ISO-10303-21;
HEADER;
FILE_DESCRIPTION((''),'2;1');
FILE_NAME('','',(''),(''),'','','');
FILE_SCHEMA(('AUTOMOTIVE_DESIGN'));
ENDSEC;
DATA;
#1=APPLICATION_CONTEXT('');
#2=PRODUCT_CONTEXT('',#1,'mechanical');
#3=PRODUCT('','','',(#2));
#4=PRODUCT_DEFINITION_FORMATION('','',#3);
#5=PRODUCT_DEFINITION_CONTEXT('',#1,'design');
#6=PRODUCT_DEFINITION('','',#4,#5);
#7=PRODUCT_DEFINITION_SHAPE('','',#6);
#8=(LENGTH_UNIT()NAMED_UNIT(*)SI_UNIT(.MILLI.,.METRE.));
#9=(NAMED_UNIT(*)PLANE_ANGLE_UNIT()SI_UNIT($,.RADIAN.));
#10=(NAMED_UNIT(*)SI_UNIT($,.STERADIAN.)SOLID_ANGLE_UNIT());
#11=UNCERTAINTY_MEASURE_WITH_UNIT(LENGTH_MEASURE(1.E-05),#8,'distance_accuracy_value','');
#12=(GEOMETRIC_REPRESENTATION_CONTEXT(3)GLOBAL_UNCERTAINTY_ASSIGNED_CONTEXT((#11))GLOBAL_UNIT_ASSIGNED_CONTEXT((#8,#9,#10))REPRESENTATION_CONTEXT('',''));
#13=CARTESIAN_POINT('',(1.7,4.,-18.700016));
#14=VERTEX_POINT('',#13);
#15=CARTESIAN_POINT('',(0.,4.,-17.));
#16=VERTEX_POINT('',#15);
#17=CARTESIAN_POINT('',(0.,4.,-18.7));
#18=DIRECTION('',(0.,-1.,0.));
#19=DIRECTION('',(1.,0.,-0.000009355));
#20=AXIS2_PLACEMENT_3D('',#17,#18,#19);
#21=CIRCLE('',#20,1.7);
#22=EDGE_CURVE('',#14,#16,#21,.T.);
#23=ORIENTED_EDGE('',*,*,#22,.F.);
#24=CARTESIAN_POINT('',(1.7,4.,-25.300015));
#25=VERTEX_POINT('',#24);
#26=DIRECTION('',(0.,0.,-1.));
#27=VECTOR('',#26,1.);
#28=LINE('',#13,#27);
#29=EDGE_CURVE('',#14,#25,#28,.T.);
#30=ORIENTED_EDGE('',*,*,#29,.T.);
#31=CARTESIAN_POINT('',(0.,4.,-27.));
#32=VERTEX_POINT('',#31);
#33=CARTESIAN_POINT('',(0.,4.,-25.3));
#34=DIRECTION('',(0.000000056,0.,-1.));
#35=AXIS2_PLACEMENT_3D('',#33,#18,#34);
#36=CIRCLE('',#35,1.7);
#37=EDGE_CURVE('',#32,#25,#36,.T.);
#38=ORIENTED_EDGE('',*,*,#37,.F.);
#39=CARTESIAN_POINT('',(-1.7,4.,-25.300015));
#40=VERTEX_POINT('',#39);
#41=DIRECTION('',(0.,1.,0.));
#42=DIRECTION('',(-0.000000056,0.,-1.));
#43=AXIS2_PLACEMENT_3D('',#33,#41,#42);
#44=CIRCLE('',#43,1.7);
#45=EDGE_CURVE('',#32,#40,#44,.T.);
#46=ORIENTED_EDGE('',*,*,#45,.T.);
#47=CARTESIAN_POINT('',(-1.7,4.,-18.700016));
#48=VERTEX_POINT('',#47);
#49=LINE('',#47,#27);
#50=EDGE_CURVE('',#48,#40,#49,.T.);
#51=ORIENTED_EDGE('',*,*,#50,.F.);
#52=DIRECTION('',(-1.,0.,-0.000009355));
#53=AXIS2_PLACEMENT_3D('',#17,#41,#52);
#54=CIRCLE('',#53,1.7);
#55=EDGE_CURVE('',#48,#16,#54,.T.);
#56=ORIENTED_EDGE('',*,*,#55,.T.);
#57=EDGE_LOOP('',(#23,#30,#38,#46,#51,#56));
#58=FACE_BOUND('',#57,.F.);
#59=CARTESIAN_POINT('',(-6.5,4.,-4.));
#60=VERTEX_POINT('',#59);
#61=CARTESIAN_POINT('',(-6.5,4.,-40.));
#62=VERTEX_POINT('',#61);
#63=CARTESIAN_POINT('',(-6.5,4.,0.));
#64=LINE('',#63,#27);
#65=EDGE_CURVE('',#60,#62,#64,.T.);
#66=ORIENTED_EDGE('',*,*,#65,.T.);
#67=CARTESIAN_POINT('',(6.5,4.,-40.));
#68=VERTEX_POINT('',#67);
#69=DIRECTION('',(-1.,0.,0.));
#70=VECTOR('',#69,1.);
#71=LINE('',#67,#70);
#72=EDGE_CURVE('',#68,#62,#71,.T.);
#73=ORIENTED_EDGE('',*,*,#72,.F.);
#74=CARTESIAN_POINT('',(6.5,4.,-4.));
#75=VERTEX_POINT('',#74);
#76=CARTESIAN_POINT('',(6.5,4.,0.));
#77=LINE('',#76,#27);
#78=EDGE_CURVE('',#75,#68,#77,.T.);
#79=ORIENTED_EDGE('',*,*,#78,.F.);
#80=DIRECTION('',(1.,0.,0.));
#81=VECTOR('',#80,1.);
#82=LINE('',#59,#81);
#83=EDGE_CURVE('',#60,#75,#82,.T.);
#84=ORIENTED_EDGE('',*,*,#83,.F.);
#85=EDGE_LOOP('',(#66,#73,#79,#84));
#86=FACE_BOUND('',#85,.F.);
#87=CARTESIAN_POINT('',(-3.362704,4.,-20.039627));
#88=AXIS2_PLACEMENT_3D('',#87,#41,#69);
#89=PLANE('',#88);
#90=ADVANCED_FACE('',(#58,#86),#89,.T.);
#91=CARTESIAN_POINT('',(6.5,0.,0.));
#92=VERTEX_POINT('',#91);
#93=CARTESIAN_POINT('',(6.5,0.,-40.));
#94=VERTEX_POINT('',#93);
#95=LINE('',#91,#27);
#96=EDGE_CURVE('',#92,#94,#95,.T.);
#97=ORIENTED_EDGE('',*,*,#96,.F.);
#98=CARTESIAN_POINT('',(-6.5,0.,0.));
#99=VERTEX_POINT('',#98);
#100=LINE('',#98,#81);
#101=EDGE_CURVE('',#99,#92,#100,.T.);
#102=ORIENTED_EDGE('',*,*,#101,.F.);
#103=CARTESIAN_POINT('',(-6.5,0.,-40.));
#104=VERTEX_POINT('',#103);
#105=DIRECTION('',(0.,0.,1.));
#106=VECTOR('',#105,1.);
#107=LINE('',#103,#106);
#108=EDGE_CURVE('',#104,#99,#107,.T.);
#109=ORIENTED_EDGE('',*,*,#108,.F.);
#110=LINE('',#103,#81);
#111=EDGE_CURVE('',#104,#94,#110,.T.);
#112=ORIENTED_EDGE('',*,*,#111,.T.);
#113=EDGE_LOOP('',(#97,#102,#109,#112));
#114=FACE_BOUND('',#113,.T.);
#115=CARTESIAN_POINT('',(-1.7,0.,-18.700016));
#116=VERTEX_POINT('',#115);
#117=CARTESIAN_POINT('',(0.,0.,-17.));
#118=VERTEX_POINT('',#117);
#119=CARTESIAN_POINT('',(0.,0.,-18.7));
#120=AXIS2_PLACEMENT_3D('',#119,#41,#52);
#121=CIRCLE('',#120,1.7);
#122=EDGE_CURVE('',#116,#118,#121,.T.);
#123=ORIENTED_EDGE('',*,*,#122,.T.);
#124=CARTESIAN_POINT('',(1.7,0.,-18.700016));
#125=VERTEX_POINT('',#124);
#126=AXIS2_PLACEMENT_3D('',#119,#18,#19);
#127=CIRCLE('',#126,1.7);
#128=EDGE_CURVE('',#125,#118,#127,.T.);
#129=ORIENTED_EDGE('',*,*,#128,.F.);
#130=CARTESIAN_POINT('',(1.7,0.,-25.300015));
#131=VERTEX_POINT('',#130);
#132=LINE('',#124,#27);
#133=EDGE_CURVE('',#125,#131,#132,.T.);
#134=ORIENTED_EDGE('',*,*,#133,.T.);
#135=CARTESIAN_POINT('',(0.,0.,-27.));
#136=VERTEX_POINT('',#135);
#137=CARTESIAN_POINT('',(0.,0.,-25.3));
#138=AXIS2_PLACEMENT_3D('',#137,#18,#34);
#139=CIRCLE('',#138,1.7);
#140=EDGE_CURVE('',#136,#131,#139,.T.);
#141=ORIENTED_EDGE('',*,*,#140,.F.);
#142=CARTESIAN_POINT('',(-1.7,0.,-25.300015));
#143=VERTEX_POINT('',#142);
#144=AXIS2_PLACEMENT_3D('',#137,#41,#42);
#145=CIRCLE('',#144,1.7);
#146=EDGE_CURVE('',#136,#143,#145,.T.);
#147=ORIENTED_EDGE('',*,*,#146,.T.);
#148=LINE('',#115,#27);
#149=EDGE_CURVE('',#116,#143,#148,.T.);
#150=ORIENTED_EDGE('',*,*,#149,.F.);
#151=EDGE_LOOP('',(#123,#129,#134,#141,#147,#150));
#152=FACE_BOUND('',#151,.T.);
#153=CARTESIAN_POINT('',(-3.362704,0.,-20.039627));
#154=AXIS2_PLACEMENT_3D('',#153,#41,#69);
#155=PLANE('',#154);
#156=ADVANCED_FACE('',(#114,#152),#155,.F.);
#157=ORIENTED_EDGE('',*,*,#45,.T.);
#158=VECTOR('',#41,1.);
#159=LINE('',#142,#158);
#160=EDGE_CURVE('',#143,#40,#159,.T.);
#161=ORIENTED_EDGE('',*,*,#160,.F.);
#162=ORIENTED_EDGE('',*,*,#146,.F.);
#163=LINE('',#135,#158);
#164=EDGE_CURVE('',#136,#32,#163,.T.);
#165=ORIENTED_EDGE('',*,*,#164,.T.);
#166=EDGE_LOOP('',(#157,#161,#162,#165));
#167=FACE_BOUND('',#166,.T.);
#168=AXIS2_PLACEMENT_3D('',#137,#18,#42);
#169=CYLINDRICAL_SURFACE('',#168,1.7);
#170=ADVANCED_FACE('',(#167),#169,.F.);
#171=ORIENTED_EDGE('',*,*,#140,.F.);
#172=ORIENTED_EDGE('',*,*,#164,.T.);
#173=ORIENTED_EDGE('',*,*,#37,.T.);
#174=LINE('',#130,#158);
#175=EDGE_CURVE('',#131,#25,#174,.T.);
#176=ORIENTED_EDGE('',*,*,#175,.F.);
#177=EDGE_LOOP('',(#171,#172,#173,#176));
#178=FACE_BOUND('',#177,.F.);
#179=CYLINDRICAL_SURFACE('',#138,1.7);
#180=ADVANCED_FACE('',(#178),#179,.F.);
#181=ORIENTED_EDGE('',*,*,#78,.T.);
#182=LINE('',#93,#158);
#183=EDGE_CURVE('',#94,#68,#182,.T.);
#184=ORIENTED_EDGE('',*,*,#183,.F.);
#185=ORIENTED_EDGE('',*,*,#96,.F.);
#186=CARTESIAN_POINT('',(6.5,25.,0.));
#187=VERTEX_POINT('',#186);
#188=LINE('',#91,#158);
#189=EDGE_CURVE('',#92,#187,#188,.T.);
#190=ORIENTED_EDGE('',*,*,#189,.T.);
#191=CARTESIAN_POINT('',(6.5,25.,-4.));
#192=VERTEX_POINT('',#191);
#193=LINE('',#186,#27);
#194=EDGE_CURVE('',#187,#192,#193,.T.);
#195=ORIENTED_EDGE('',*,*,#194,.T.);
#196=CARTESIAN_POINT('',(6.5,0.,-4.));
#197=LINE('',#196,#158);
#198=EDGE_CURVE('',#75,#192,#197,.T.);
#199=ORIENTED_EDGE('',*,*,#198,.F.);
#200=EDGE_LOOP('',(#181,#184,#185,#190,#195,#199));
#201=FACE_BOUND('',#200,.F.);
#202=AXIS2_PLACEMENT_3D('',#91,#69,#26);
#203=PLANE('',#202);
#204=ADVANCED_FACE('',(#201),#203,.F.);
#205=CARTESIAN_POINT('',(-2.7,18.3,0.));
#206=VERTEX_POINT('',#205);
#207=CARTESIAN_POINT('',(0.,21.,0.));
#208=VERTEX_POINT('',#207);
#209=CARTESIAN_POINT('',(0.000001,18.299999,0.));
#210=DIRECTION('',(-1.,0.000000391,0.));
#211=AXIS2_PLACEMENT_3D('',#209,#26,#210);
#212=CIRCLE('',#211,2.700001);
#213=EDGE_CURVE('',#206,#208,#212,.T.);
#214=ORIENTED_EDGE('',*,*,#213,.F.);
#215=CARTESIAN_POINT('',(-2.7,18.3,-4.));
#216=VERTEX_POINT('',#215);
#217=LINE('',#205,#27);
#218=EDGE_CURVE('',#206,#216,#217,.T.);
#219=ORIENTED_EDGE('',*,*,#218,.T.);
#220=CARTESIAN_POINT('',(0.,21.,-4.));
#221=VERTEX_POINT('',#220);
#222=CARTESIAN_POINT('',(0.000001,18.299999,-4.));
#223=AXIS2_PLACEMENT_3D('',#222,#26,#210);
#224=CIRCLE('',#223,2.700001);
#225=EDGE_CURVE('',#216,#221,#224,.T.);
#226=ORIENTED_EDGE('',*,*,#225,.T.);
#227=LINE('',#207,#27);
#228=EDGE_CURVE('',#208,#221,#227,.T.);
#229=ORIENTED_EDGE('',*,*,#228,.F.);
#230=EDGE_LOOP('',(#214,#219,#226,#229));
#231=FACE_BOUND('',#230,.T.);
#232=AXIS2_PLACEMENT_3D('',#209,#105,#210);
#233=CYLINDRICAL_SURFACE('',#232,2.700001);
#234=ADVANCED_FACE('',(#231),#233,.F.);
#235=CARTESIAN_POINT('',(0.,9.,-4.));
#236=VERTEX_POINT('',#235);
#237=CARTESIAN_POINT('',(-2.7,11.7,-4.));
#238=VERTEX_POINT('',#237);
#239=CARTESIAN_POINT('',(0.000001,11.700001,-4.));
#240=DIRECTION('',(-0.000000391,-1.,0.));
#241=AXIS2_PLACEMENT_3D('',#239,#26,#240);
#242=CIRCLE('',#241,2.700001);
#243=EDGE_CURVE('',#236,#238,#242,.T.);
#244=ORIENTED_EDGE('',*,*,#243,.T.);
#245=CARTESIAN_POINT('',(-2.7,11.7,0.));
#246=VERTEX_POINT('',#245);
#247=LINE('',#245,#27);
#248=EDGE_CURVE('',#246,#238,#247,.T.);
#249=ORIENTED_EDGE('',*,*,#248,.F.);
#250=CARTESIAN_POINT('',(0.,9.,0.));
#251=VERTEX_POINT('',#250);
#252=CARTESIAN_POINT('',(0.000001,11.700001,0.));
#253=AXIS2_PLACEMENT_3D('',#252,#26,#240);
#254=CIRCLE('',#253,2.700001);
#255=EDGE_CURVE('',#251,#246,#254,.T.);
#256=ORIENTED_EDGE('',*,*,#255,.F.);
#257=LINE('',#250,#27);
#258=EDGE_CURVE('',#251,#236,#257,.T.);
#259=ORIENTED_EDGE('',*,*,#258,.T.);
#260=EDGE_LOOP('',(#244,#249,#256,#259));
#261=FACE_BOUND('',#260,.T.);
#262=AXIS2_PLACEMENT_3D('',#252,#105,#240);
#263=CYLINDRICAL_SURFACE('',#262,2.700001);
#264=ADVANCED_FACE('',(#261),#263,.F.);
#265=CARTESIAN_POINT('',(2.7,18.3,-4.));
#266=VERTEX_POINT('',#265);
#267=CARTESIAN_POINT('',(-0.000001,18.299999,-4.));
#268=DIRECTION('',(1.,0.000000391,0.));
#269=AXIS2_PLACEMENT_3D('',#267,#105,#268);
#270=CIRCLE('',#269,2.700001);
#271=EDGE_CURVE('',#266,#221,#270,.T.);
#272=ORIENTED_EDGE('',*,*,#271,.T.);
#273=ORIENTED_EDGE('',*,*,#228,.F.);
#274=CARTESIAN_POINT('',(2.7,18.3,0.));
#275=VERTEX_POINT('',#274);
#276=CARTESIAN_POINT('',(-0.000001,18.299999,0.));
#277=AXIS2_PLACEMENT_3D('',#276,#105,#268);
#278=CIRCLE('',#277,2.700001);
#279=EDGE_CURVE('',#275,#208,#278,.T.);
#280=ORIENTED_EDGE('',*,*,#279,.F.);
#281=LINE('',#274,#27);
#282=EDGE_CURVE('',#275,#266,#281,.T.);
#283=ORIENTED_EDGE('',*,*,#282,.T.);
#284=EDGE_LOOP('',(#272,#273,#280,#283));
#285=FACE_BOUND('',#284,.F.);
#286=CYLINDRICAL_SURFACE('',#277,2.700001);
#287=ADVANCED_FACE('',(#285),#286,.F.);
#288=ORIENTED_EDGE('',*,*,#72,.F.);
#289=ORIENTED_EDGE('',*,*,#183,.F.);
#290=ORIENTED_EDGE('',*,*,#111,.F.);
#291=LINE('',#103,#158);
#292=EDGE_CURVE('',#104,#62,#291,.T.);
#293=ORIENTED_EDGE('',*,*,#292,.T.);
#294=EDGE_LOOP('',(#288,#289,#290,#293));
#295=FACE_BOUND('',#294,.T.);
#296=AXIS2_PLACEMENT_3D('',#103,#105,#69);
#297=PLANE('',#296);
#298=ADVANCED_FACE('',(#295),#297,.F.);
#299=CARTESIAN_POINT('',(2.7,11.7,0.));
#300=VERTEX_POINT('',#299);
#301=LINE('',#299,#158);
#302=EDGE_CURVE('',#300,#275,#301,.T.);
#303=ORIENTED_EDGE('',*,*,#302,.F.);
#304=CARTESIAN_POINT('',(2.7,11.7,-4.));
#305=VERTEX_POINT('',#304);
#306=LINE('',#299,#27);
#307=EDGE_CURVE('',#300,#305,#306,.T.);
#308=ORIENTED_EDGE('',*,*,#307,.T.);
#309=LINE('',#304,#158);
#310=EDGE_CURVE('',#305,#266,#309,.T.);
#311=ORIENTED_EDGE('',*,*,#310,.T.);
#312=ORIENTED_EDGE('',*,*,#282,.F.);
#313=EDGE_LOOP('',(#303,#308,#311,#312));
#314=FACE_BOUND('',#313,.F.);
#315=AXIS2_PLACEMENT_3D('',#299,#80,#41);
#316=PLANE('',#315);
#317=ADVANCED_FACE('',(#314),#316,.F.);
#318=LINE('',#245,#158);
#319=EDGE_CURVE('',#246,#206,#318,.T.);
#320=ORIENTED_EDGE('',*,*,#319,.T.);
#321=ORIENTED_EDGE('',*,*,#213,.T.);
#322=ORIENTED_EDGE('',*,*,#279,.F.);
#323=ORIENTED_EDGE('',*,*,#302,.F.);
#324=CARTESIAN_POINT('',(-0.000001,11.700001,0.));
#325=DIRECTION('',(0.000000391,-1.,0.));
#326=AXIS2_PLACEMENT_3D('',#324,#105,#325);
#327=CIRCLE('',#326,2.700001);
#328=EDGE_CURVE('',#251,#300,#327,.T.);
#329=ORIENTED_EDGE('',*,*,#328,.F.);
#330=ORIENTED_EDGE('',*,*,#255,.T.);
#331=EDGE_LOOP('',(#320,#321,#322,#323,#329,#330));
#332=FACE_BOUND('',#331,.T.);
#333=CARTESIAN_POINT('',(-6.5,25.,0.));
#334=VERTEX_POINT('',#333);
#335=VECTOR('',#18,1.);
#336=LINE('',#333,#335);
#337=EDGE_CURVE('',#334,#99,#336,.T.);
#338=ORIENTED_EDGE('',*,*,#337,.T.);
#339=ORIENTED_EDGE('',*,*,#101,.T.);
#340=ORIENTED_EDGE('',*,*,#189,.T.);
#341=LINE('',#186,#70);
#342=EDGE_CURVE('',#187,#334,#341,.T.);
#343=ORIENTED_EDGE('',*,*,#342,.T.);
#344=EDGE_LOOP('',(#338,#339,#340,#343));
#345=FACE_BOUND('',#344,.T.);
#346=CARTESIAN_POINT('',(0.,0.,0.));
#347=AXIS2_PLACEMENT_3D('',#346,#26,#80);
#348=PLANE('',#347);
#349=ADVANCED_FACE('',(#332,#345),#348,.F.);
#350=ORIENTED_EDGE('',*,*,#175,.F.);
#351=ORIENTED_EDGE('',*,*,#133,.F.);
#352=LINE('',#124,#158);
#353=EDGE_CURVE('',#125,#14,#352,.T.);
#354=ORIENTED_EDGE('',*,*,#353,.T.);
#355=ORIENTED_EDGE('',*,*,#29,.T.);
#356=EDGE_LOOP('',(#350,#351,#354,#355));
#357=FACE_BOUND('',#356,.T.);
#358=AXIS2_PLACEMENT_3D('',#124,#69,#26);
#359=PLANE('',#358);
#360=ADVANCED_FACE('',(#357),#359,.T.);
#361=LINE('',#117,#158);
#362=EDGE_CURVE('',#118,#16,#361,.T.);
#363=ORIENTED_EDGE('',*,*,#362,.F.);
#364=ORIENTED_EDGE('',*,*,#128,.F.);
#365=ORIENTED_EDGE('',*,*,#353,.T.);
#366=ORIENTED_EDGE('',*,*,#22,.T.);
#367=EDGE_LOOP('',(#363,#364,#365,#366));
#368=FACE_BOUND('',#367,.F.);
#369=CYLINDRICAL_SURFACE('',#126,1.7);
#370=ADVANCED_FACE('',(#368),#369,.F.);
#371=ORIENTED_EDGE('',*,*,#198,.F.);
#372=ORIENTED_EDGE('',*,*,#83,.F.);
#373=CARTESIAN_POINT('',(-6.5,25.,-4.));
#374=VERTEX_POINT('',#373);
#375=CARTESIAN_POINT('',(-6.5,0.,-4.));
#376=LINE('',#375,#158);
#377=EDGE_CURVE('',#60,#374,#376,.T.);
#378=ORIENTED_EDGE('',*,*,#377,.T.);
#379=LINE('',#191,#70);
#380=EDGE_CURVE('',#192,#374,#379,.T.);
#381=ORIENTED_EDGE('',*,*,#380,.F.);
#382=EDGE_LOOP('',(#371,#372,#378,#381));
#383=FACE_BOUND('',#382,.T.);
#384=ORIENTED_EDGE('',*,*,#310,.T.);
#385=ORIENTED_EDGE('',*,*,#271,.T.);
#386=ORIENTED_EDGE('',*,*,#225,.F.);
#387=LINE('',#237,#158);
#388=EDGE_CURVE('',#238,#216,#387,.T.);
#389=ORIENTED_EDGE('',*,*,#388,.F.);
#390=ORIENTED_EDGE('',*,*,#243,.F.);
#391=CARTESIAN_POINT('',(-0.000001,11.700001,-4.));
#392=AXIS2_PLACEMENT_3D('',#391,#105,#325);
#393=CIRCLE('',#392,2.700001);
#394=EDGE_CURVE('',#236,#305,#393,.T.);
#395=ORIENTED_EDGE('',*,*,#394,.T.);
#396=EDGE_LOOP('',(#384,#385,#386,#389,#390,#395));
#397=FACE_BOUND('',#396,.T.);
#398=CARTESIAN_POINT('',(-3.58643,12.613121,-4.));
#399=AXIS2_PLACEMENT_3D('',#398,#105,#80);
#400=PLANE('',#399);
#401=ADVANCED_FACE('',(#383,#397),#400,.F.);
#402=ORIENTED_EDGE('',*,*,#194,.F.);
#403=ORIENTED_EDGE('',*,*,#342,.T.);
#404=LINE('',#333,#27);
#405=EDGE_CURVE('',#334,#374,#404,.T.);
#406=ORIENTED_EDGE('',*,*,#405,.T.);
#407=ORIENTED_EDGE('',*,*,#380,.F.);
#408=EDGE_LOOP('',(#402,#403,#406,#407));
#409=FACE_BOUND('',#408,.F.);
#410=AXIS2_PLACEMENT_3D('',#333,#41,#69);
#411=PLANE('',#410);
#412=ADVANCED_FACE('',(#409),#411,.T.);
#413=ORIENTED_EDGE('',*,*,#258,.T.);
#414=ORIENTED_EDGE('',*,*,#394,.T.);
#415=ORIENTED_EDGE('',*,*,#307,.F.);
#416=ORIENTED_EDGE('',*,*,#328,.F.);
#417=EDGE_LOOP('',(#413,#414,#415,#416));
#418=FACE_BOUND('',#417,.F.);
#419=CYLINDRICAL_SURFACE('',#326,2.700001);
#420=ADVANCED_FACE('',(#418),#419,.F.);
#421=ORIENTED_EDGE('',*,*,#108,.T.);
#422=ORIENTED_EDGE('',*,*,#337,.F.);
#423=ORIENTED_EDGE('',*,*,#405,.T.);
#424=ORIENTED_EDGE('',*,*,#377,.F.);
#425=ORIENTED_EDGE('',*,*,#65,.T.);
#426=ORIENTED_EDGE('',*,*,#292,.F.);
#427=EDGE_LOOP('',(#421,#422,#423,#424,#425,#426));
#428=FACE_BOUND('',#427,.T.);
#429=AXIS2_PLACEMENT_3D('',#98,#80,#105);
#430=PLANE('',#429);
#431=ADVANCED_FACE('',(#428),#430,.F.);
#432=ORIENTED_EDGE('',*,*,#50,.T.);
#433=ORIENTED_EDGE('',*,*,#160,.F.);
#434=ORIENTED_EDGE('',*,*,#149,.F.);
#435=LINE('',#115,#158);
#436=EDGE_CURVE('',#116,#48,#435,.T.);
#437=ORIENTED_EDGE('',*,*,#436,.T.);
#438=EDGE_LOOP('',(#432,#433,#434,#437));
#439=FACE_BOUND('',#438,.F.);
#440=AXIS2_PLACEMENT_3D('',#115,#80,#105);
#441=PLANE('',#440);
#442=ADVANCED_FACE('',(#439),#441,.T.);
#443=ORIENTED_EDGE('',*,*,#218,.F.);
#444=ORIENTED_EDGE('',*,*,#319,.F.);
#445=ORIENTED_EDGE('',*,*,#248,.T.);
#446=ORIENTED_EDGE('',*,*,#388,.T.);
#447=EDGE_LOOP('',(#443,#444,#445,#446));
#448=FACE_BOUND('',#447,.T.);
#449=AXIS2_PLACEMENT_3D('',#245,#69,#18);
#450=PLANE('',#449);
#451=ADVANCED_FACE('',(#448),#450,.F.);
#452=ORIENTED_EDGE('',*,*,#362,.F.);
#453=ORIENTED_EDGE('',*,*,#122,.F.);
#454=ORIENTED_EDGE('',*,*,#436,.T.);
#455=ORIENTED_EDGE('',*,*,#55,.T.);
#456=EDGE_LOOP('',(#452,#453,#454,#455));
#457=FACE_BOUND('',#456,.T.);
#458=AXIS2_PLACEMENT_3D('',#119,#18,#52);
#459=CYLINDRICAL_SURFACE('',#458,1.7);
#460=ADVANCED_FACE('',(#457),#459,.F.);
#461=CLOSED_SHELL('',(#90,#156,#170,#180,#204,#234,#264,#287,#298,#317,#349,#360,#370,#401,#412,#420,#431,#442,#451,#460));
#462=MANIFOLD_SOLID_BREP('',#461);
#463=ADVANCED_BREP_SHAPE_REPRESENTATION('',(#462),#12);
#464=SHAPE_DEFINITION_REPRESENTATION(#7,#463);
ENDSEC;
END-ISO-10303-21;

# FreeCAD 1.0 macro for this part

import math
import FreeCAD as App
import Part
import Sketcher

V = App.Vector

doc = App.newDocument("Part")
body = doc.addObject("PartDesign::Body", "Body")

# Sketch on XZ plane
sketch1 = body.newObject("Sketcher::SketchObject", "Sketch")
sketch1.AttachmentSupport = (doc.getObject("XZ_Plane"), [""])
sketch1.MapMode = "FlatFace"
sketch1.addGeometry([
    Part.LineSegment(V(6.5, 0, 0), V(0, 0, 0)),  # 0
    Part.LineSegment(V(0, 0, 0), V(0, -17, 0)),  # 1
    Part.ArcOfCircle(Part.Circle(V(0, -18.7, 0), V(0, 0, 1), 1.7), math.radians(0), math.radians(90)),  # 2
    Part.LineSegment(V(1.7, -18.7, 0), V(1.7, -25.3, 0)),  # 3
    Part.ArcOfCircle(Part.Circle(V(0, -25.3, 0), V(0, 0, 1), 1.7), math.radians(-90), math.radians(0)),  # 4
    Part.LineSegment(V(0, -27, 0), V(0, -40, 0)),  # 5
    Part.LineSegment(V(0, -40, 0), V(6.5, -40, 0)),  # 6
    Part.LineSegment(V(6.5, -40, 0), V(6.5, 0, 0)),  # 7
], False)
sketch1.addConstraint([
    Sketcher.Constraint("Coincident", 0, 2, 1, 1),
    Sketcher.Constraint("Coincident", 1, 2, 2, 2),
    Sketcher.Constraint("Coincident", 2, 1, 3, 1),
    Sketcher.Constraint("Coincident", 3, 2, 4, 2),
    Sketcher.Constraint("Coincident", 4, 1, 5, 1),
    Sketcher.Constraint("Coincident", 5, 2, 6, 1),
    Sketcher.Constraint("Coincident", 6, 2, 7, 1),
    Sketcher.Constraint("Coincident", 7, 2, 0, 1),
    Sketcher.Constraint("Horizontal", 0),
    Sketcher.Constraint("Vertical", 1),
    Sketcher.Constraint("Vertical", 3),
    Sketcher.Constraint("Vertical", 5),
    Sketcher.Constraint("Horizontal", 6),
    Sketcher.Constraint("Vertical", 7),
    Sketcher.Constraint("Coincident", 0, 2, -1, 1),
    Sketcher.Constraint("Equal", 2, 4),
    Sketcher.Constraint("PointOnObject", 2, 3, -2),
    Sketcher.Constraint("PointOnObject", 4, 1, -2),
    Sketcher.Constraint("Radius", 2, 1.7),
    Sketcher.Constraint("DistanceY", 1, 2, 1, 1, 17.0),
    Sketcher.Constraint("DistanceY", 5, 2, 5, 1, 13.0),
    Sketcher.Constraint("DistanceY", 7, 1, 7, 2, 40.0),
    Sketcher.Constraint("DistanceX", 0, 2, 0, 1, 6.5),
    Sketcher.Constraint("DistanceY", 3, 2, 3, 1, 6.599999),
    Sketcher.Constraint("DistanceY", 2, 1, -1, 1, 18.700016),
])
pad1 = body.newObject("PartDesign::Pad", "Pad")
pad1.Profile = sketch1
pad1.Length = 4
pad1.Reversed = True

# Sketch on XY plane
sketch2 = body.newObject("Sketcher::SketchObject", "Sketch001")
sketch2.AttachmentSupport = (doc.getObject("XY_Plane"), [""])
sketch2.MapMode = "FlatFace"
sketch2.addGeometry([
    Part.LineSegment(V(0, 0, 0), V(6.5, 0, 0)),  # 0
    Part.LineSegment(V(6.5, 0, 0), V(6.5, 25, 0)),  # 1
    Part.LineSegment(V(6.5, 25, 0), V(0, 25, 0)),  # 2
    Part.LineSegment(V(0, 25, 0), V(0, 21, 0)),  # 3
    Part.ArcOfCircle(Part.Circle(V(0, 18.3, 0), V(0, 0, 1), 2.7), math.radians(0), math.radians(90)),  # 4
    Part.LineSegment(V(2.7, 18.3, 0), V(2.7, 11.7, 0)),  # 5
    Part.ArcOfCircle(Part.Circle(V(0, 11.7, 0), V(0, 0, 1), 2.7), math.radians(-90), math.radians(0)),  # 6
    Part.LineSegment(V(0, 9, 0), V(0, 0, 0)),  # 7
], False)
sketch2.addConstraint([
    Sketcher.Constraint("Coincident", 0, 2, 1, 1),
    Sketcher.Constraint("Coincident", 1, 2, 2, 1),
    Sketcher.Constraint("Coincident", 2, 2, 3, 1),
    Sketcher.Constraint("Coincident", 3, 2, 4, 2),
    Sketcher.Constraint("Tangent", 4, 1, 5, 1),
    Sketcher.Constraint("Tangent", 5, 2, 6, 2),
    Sketcher.Constraint("Coincident", 6, 1, 7, 1),
    Sketcher.Constraint("Coincident", 7, 2, 0, 1),
    Sketcher.Constraint("Horizontal", 0),
    Sketcher.Constraint("Vertical", 1),
    Sketcher.Constraint("Horizontal", 2),
    Sketcher.Constraint("Vertical", 3),
    Sketcher.Constraint("Vertical", 5),
    Sketcher.Constraint("Vertical", 7),
    Sketcher.Constraint("Coincident", 7, 2, -1, 1),
    Sketcher.Constraint("Equal", 4, 6),
    Sketcher.Constraint("PointOnObject", 4, 3, -2),
    Sketcher.Constraint("PointOnObject", 2, 2, -2),
    Sketcher.Constraint("Radius", 4, 2.700001),
    Sketcher.Constraint("DistanceY", 1, 1, 1, 2, 25.0),
    Sketcher.Constraint("DistanceY", 3, 2, 3, 1, 4.0),
    Sketcher.Constraint("DistanceY", 7, 2, 7, 1, 9.0),
    Sketcher.Constraint("DistanceX", 0, 1, 0, 2, 6.5),
])
pad2 = body.newObject("PartDesign::Pad", "Pad001")
pad2.Profile = sketch2
pad2.Length = 4
pad2.Reversed = True
doc.recompute()

mirrored = body.newObject("PartDesign::Mirrored", "Mirrored")
mirrored.Originals = [pad1, pad2]
mirrored.MirrorPlane = (doc.getObject("YZ_Plane"), [""])
body.Tip = mirrored

doc.recompute()
